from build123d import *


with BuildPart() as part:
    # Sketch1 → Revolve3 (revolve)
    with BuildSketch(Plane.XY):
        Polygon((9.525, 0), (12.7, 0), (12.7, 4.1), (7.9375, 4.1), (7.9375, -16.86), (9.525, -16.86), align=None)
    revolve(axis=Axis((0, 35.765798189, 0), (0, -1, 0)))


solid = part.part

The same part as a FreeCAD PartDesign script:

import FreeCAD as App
import Part
import Sketcher
Q = App.Units.Quantity


def add_polygon(sketch, points):
    """Adds a closed chain of lines whose ends are joined by coincident constraints."""
    first, n = sketch.GeometryCount, len(points)
    for a, b in zip(points, points[1:] + points[:1]):
        sketch.addGeometry(Part.LineSegment(App.Vector(*a, 0), App.Vector(*b, 0)), False)
    for i in range(n):
        sketch.addConstraint(Sketcher.Constraint("Coincident", first + i, 2, first + (i + 1) % n, 1))

doc = App.newDocument("Part")
params = doc.addObject("Spreadsheet::Sheet", "Params")
for row, (alias, value) in enumerate([
    ("sketch1_width", "0.125 in"),
    ("sketch1_width2", "0.1875 in"),
    ("revolution_angle", "360 deg"),
], start=1):
    params.set(f"A{row}", alias)
    params.set(f"B{row}", "=" + value)
    params.setAlias(f"B{row}", alias)

body = doc.addObject("PartDesign::Body", "Body")

sketch1 = body.newObject("Sketcher::SketchObject", "Sketch")
sketch1.AttachmentSupport = (doc.getObject("XY_Plane"), [""])
sketch1.MapMode = "FlatFace"
add_polygon(sketch1, [(9.5, 0), (12.7, 0), (12.7, 4.1), (7.9, 4.1), (7.9, -16.9), (9.5, -16.9)])
sketch1.addConstraint([
    Sketcher.Constraint("Horizontal", 0),
    Sketcher.Constraint("Vertical", 1),
    Sketcher.Constraint("Horizontal", 2),
    Sketcher.Constraint("Vertical", 3),
    Sketcher.Constraint("Horizontal", 4),
    Sketcher.Constraint("Vertical", 5),
    Sketcher.Constraint("PointOnObject", 0, 2, -1),
    Sketcher.Constraint("DistanceX", -1, 1, 0, 2, Q("0.5 in")),
    Sketcher.Constraint("DistanceX", 0, 1, 0, 2, Q("0.125 in")),
    Sketcher.Constraint("DistanceX", 2, 2, 2, 1, Q("0.1875 in")),
    Sketcher.Constraint("DistanceY", 1, 1, 1, 2, Q("4.1 mm")),
    Sketcher.Constraint("DistanceY", 3, 2, 3, 1, Q("20.96 mm")),
])
sketch1.setExpression("Constraints[14]", "Params.sketch1_width")
sketch1.setExpression("Constraints[15]", "Params.sketch1_width2")
revolution = body.newObject("PartDesign::Revolution", "Revolution")
revolution.Profile = sketch1
revolution.ReferenceAxis = (sketch1, ["V_Axis"])
revolution.setExpression("Angle", "Params.revolution_angle")

doc.recompute()
